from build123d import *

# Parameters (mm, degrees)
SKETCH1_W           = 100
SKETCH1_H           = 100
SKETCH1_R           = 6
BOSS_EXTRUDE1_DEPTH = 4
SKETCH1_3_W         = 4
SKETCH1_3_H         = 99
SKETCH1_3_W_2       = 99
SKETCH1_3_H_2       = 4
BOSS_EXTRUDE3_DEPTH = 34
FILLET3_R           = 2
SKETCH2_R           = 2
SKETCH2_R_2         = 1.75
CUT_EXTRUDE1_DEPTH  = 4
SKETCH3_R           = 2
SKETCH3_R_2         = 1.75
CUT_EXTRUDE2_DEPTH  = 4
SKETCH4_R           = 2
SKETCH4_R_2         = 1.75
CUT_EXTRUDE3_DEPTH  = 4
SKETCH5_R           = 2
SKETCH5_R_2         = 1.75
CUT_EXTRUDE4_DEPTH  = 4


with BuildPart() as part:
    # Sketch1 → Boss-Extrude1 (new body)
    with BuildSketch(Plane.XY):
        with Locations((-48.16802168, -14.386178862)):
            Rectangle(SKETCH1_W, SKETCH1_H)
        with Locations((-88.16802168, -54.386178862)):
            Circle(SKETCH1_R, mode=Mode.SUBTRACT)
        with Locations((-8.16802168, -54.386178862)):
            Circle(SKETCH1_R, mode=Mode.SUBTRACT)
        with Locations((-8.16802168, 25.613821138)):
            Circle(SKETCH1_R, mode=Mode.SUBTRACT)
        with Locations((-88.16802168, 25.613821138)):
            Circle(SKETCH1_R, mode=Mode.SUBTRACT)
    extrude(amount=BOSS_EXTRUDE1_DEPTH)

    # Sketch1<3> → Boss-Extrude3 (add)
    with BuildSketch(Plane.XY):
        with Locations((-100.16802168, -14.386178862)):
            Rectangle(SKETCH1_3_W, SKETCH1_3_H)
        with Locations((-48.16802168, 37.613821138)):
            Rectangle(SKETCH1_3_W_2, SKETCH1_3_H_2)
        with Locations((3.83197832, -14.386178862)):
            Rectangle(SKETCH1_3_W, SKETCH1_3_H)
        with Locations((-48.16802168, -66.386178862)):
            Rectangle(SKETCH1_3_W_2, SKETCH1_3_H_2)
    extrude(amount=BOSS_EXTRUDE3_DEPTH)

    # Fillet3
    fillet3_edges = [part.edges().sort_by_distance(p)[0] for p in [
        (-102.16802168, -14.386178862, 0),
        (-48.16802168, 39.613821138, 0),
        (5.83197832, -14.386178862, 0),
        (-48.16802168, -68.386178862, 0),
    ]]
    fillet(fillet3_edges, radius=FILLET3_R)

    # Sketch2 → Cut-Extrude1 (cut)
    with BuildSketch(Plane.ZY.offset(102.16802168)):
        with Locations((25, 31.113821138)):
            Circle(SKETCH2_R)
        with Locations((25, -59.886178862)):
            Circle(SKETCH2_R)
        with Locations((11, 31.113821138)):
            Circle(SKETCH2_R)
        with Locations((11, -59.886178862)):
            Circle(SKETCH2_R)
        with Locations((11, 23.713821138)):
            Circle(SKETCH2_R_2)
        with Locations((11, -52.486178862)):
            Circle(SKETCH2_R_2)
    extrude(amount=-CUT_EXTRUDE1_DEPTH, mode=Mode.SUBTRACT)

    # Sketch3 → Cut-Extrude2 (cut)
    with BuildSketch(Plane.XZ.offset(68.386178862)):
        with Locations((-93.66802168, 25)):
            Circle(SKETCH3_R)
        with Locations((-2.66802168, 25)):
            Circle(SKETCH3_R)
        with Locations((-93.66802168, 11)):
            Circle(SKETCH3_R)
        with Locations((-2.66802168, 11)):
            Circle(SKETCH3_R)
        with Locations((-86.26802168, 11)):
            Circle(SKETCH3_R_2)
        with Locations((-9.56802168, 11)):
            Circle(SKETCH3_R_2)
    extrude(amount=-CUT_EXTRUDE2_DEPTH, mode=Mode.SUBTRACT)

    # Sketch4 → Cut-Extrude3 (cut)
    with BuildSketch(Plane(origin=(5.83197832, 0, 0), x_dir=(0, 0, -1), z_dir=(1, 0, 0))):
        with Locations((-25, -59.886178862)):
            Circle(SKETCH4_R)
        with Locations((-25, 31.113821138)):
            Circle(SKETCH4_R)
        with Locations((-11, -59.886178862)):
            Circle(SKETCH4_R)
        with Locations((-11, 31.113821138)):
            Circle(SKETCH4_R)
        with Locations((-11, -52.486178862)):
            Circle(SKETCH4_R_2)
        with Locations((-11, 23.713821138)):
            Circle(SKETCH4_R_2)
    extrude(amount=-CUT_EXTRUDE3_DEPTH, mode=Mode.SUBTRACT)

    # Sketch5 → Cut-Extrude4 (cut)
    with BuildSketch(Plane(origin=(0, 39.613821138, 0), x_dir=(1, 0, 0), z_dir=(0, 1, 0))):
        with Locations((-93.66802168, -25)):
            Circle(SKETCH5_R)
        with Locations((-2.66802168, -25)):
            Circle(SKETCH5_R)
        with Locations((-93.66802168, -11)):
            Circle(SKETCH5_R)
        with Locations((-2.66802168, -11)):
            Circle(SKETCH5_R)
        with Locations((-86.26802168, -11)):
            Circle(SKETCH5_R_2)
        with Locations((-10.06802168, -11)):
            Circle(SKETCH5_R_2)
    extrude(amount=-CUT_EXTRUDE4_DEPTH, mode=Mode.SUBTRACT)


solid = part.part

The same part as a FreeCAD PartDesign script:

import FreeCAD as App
import Part
import Sketcher
from FreeCAD import Vector


def edges_at(feature, points):
    """Names of the edges that pass closest to the given points."""
    edges = feature.Shape.Edges
    near = lambda p: min(range(len(edges)), key=lambda i: edges[i].distToShape(Part.Vertex(*p))[0])
    return sorted({f"Edge{near(p) + 1}" for p in points})

doc = App.newDocument("Part")
body = doc.addObject("PartDesign::Body", "Body")

# Sketch on XY plane
sketch1 = body.newObject("Sketcher::SketchObject", "Sketch")
sketch1.AttachmentSupport = (doc.getObject("XY_Plane"), [""])
sketch1.MapMode = "FlatFace"
sketch1.addGeometry(Part.LineSegment(Vector(-98, 36, 0), Vector(-98, -64, 0)), False)
sketch1.addGeometry(Part.LineSegment(Vector(-98, -64, 0), Vector(2, -64, 0)), False)
sketch1.addGeometry(Part.LineSegment(Vector(2, -64, 0), Vector(2, 36, 0)), False)
sketch1.addGeometry(Part.LineSegment(Vector(2, 36, 0), Vector(-98, 36, 0)), False)
sketch1.addGeometry(Part.Circle(Vector(-88, -54, 0), Vector(0, 0, 1), 6), False)
sketch1.addGeometry(Part.Circle(Vector(-8, -54, 0), Vector(0, 0, 1), 6), False)
sketch1.addGeometry(Part.Circle(Vector(-88, 26, 0), Vector(0, 0, 1), 6), False)
sketch1.addGeometry(Part.Circle(Vector(-8, 26, 0), Vector(0, 0, 1), 6), False)
sketch1.addConstraint(Sketcher.Constraint("Coincident", 0, 2, 1, 1))
sketch1.addConstraint(Sketcher.Constraint("Coincident", 1, 2, 2, 1))
sketch1.addConstraint(Sketcher.Constraint("Coincident", 2, 2, 3, 1))
sketch1.addConstraint(Sketcher.Constraint("Coincident", 3, 2, 0, 1))
sketch1.addConstraint(Sketcher.Constraint("Vertical", 0))
sketch1.addConstraint(Sketcher.Constraint("Horizontal", 1))
sketch1.addConstraint(Sketcher.Constraint("Vertical", 2))
sketch1.addConstraint(Sketcher.Constraint("Horizontal", 3))
sketch1.addConstraint(Sketcher.Constraint("Equal", 4, 5))
sketch1.addConstraint(Sketcher.Constraint("Equal", 5, 6))
sketch1.addConstraint(Sketcher.Constraint("Equal", 6, 7))
sketch1.addConstraint(Sketcher.Constraint("Horizontal", 4, 3, 5, 3))
sketch1.addConstraint(Sketcher.Constraint("Horizontal", 6, 3, 7, 3))
sketch1.addConstraint(Sketcher.Constraint("Vertical", 4, 3, 6, 3))
sketch1.addConstraint(Sketcher.Constraint("Vertical", 5, 3, 7, 3))
sketch1.addConstraint(Sketcher.Constraint("Equal", 3, 0))
sketch1.addConstraint(Sketcher.Constraint("Diameter", 4, 12.0))
sketch1.addConstraint(Sketcher.Constraint("DistanceX", 1, 1, 1, 2, 100.0))
sketch1.addConstraint(Sketcher.Constraint("DistanceX", 4, 3, 5, 3, 80.0))
sketch1.addConstraint(Sketcher.Constraint("DistanceY", 4, 3, 6, 3, 80.0))
sketch1.addConstraint(Sketcher.Constraint("DistanceX", 0, 2, 4, 3, 10.0))
sketch1.addConstraint(Sketcher.Constraint("DistanceY", 0, 2, 4, 3, 10.0))
sketch1.addConstraint(Sketcher.Constraint("DistanceX", 4, 3, -1, 1, 88.168022))
sketch1.addConstraint(Sketcher.Constraint("DistanceY", 4, 3, -1, 1, 54.386179))
pad1 = body.newObject("PartDesign::Pad", "Pad")
pad1.Profile = sketch1
pad1.Length = 4

# Sketch on XY plane
sketch2 = body.newObject("Sketcher::SketchObject", "Sketch001")
sketch2.AttachmentSupport = (doc.getObject("XY_Plane"), [""])
sketch2.MapMode = "FlatFace"
sketch2.addGeometry(Part.LineSegment(Vector(-102.2, 35.1, 0), Vector(-102.2, -63.9, 0)), False)
sketch2.addGeometry(Part.LineSegment(Vector(-102.2, -63.9, 0), Vector(-98.2, -63.9, 0)), False)
sketch2.addGeometry(Part.LineSegment(Vector(-98.2, -63.9, 0), Vector(-98.2, 35.1, 0)), False)
sketch2.addGeometry(Part.LineSegment(Vector(-98.2, 35.1, 0), Vector(-102.2, 35.1, 0)), False)
sketch2.addGeometry(Part.LineSegment(Vector(-97.7, 39.6, 0), Vector(-97.7, 35.6, 0)), False)
sketch2.addGeometry(Part.LineSegment(Vector(-97.7, 35.6, 0), Vector(1.3, 35.6, 0)), False)
sketch2.addGeometry(Part.LineSegment(Vector(1.3, 35.6, 0), Vector(1.3, 39.6, 0)), False)
sketch2.addGeometry(Part.LineSegment(Vector(1.3, 39.6, 0), Vector(-97.7, 39.6, 0)), False)
sketch2.addGeometry(Part.LineSegment(Vector(1.8, 35.1, 0), Vector(1.8, -63.9, 0)), False)
sketch2.addGeometry(Part.LineSegment(Vector(1.8, -63.9, 0), Vector(5.8, -63.9, 0)), False)
sketch2.addGeometry(Part.LineSegment(Vector(5.8, -63.9, 0), Vector(5.8, 35.1, 0)), False)
sketch2.addGeometry(Part.LineSegment(Vector(5.8, 35.1, 0), Vector(1.8, 35.1, 0)), False)
sketch2.addGeometry(Part.LineSegment(Vector(-97.7, -64.4, 0), Vector(-97.7, -68.4, 0)), False)
sketch2.addGeometry(Part.LineSegment(Vector(-97.7, -68.4, 0), Vector(1.3, -68.4, 0)), False)
sketch2.addGeometry(Part.LineSegment(Vector(1.3, -68.4, 0), Vector(1.3, -64.4, 0)), False)
sketch2.addGeometry(Part.LineSegment(Vector(1.3, -64.4, 0), Vector(-97.7, -64.4, 0)), False)
sketch2.addConstraint(Sketcher.Constraint("Coincident", 0, 2, 1, 1))
sketch2.addConstraint(Sketcher.Constraint("Coincident", 1, 2, 2, 1))
sketch2.addConstraint(Sketcher.Constraint("Coincident", 2, 2, 3, 1))
sketch2.addConstraint(Sketcher.Constraint("Coincident", 3, 2, 0, 1))
sketch2.addConstraint(Sketcher.Constraint("Coincident", 4, 2, 5, 1))
sketch2.addConstraint(Sketcher.Constraint("Coincident", 5, 2, 6, 1))
sketch2.addConstraint(Sketcher.Constraint("Coincident", 6, 2, 7, 1))
sketch2.addConstraint(Sketcher.Constraint("Coincident", 7, 2, 4, 1))
sketch2.addConstraint(Sketcher.Constraint("Coincident", 8, 2, 9, 1))
sketch2.addConstraint(Sketcher.Constraint("Coincident", 9, 2, 10, 1))
sketch2.addConstraint(Sketcher.Constraint("Coincident", 10, 2, 11, 1))
sketch2.addConstraint(Sketcher.Constraint("Coincident", 11, 2, 8, 1))
sketch2.addConstraint(Sketcher.Constraint("Coincident", 12, 2, 13, 1))
sketch2.addConstraint(Sketcher.Constraint("Coincident", 13, 2, 14, 1))
sketch2.addConstraint(Sketcher.Constraint("Coincident", 14, 2, 15, 1))
sketch2.addConstraint(Sketcher.Constraint("Coincident", 15, 2, 12, 1))
sketch2.addConstraint(Sketcher.Constraint("Vertical", 0))
sketch2.addConstraint(Sketcher.Constraint("Horizontal", 1))
sketch2.addConstraint(Sketcher.Constraint("Vertical", 2))
sketch2.addConstraint(Sketcher.Constraint("Horizontal", 3))
sketch2.addConstraint(Sketcher.Constraint("Vertical", 4))
sketch2.addConstraint(Sketcher.Constraint("Horizontal", 5))
sketch2.addConstraint(Sketcher.Constraint("Vertical", 6))
sketch2.addConstraint(Sketcher.Constraint("Horizontal", 7))
sketch2.addConstraint(Sketcher.Constraint("Vertical", 8))
sketch2.addConstraint(Sketcher.Constraint("Horizontal", 9))
sketch2.addConstraint(Sketcher.Constraint("Vertical", 10))
sketch2.addConstraint(Sketcher.Constraint("Horizontal", 11))
sketch2.addConstraint(Sketcher.Constraint("Vertical", 12))
sketch2.addConstraint(Sketcher.Constraint("Horizontal", 13))
sketch2.addConstraint(Sketcher.Constraint("Vertical", 14))
sketch2.addConstraint(Sketcher.Constraint("Horizontal", 15))
sketch2.addConstraint(Sketcher.Constraint("Horizontal", 1, 2, 8, 2))
sketch2.addConstraint(Sketcher.Constraint("Horizontal", 3, 2, 10, 2))
sketch2.addConstraint(Sketcher.Constraint("Vertical", 7, 2, 12, 2))
sketch2.addConstraint(Sketcher.Constraint("Vertical", 6, 2, 13, 2))
sketch2.addConstraint(Sketcher.Constraint("Equal", 3, 9))
sketch2.addConstraint(Sketcher.Constraint("Equal", 15, 0))
sketch2.addConstraint(Sketcher.Constraint("Equal", 11, 4))
sketch2.addConstraint(Sketcher.Constraint("Equal", 6, 12))
sketch2.addConstraint(Sketcher.Constraint("DistanceX", 1, 1, 1, 2, 4.0))
sketch2.addConstraint(Sketcher.Constraint("DistanceX", 5, 1, 5, 2, 99.0))
sketch2.addConstraint(Sketcher.Constraint("DistanceX", 1, 2, 8, 2, 100.0))
sketch2.addConstraint(Sketcher.Constraint("DistanceX", 2, 2, 4, 2, 0.5))
sketch2.addConstraint(Sketcher.Constraint("DistanceY", 2, 2, 4, 2, 0.5))
sketch2.addConstraint(Sketcher.Constraint("DistanceY", 12, 2, 1, 2, 4.5))
sketch2.addConstraint(Sketcher.Constraint("DistanceX", 0, 2, -1, 1, 102.168022))
sketch2.addConstraint(Sketcher.Constraint("DistanceY", 0, 2, -1, 1, 63.886179))
pad2 = body.newObject("PartDesign::Pad", "Pad001")
pad2.Profile = sketch2
pad2.Length = 34
doc.recompute()

fillet = body.newObject("PartDesign::Fillet", "Fillet")
fillet.Base = (pad2, edges_at(pad2, [
    (-102.168, -14.386, 0),
    (-48.168, 39.614, 0),
    (5.832, -14.386, 0),
    (-48.168, -68.386, 0),
]))
fillet.Radius = 2

# Sketch on YZ plane
sketch3 = body.newObject("Sketcher::SketchObject", "Sketch002")
sketch3.AttachmentSupport = (doc.getObject("YZ_Plane"), [""])
sketch3.MapMode = "FlatFace"
sketch3.AttachmentOffset = App.Placement(Vector(0, 0, -102.168022), App.Rotation())
sketch3.addGeometry(Part.Circle(Vector(31.1, 25, 0), Vector(0, 0, 1), 2), False)
sketch3.addGeometry(Part.Circle(Vector(-59.9, 25, 0), Vector(0, 0, 1), 2), False)
sketch3.addGeometry(Part.Circle(Vector(31.1, 11, 0), Vector(0, 0, 1), 2), False)
sketch3.addGeometry(Part.Circle(Vector(-59.9, 11, 0), Vector(0, 0, 1), 2), False)
sketch3.addGeometry(Part.Circle(Vector(23.7, 11, 0), Vector(0, 0, 1), 1.8), False)
sketch3.addGeometry(Part.Circle(Vector(-52.5, 11, 0), Vector(0, 0, 1), 1.8), False)
sketch3.addConstraint(Sketcher.Constraint("Equal", 0, 1))
sketch3.addConstraint(Sketcher.Constraint("Equal", 1, 2))
sketch3.addConstraint(Sketcher.Constraint("Equal", 2, 3))
sketch3.addConstraint(Sketcher.Constraint("Equal", 4, 5))
sketch3.addConstraint(Sketcher.Constraint("Horizontal", 0, 3, 1, 3))
sketch3.addConstraint(Sketcher.Constraint("Horizontal", 2, 3, 3, 3))
sketch3.addConstraint(Sketcher.Constraint("Horizontal", 3, 3, 4, 3))
sketch3.addConstraint(Sketcher.Constraint("Horizontal", 4, 3, 5, 3))
sketch3.addConstraint(Sketcher.Constraint("Vertical", 0, 3, 2, 3))
sketch3.addConstraint(Sketcher.Constraint("Vertical", 1, 3, 3, 3))
sketch3.addConstraint(Sketcher.Constraint("Diameter", 0, 4.0))
sketch3.addConstraint(Sketcher.Constraint("Diameter", 4, 3.5))
sketch3.addConstraint(Sketcher.Constraint("DistanceY", -1, 1, 0, 3, 25.0))
sketch3.addConstraint(Sketcher.Constraint("DistanceY", -1, 1, 2, 3, 11.0))
sketch3.addConstraint(Sketcher.Constraint("DistanceX", 1, 3, 0, 3, 91.0))
sketch3.addConstraint(Sketcher.Constraint("DistanceX", 4, 3, 2, 3, 7.4))
sketch3.addConstraint(Sketcher.Constraint("DistanceX", 3, 3, 5, 3, 7.4))
sketch3.addConstraint(Sketcher.Constraint("DistanceX", -1, 1, 0, 3, 31.113821))
pocket1 = body.newObject("PartDesign::Pocket", "Pocket")
pocket1.Profile = sketch3
pocket1.Length = 4
pocket1.Reversed = True

# Sketch on XZ plane
sketch4 = body.newObject("Sketcher::SketchObject", "Sketch003")
sketch4.AttachmentSupport = (doc.getObject("XZ_Plane"), [""])
sketch4.MapMode = "FlatFace"
sketch4.AttachmentOffset = App.Placement(Vector(0, 0, 68.386179), App.Rotation())
sketch4.addGeometry(Part.Circle(Vector(-93.7, 25, 0), Vector(0, 0, 1), 2), False)
sketch4.addGeometry(Part.Circle(Vector(-2.7, 25, 0), Vector(0, 0, 1), 2), False)
sketch4.addGeometry(Part.Circle(Vector(-93.7, 11, 0), Vector(0, 0, 1), 2), False)
sketch4.addGeometry(Part.Circle(Vector(-2.7, 11, 0), Vector(0, 0, 1), 2), False)
sketch4.addGeometry(Part.Circle(Vector(-86.3, 11, 0), Vector(0, 0, 1), 1.8), False)
sketch4.addGeometry(Part.Circle(Vector(-9.6, 11, 0), Vector(0, 0, 1), 1.8), False)
sketch4.addConstraint(Sketcher.Constraint("Equal", 0, 1))
sketch4.addConstraint(Sketcher.Constraint("Equal", 1, 2))
sketch4.addConstraint(Sketcher.Constraint("Equal", 2, 3))
sketch4.addConstraint(Sketcher.Constraint("Equal", 4, 5))
sketch4.addConstraint(Sketcher.Constraint("Horizontal", 0, 3, 1, 3))
sketch4.addConstraint(Sketcher.Constraint("Horizontal", 2, 3, 3, 3))
sketch4.addConstraint(Sketcher.Constraint("Horizontal", 3, 3, 4, 3))
sketch4.addConstraint(Sketcher.Constraint("Horizontal", 4, 3, 5, 3))
sketch4.addConstraint(Sketcher.Constraint("Vertical", 0, 3, 2, 3))
sketch4.addConstraint(Sketcher.Constraint("Vertical", 1, 3, 3, 3))
sketch4.addConstraint(Sketcher.Constraint("Diameter", 0, 4.0))
sketch4.addConstraint(Sketcher.Constraint("Diameter", 4, 3.5))
sketch4.addConstraint(Sketcher.Constraint("DistanceY", -1, 1, 0, 3, 25.0))
sketch4.addConstraint(Sketcher.Constraint("DistanceY", -1, 1, 2, 3, 11.0))
sketch4.addConstraint(Sketcher.Constraint("DistanceX", 0, 3, 1, 3, 91.0))
sketch4.addConstraint(Sketcher.Constraint("DistanceX", 2, 3, 4, 3, 7.4))
sketch4.addConstraint(Sketcher.Constraint("DistanceX", 5, 3, 3, 3, 6.9))
sketch4.addConstraint(Sketcher.Constraint("DistanceX", 0, 3, -1, 1, 93.668022))
pocket2 = body.newObject("PartDesign::Pocket", "Pocket001")
pocket2.Profile = sketch4
pocket2.Length = 4

# Sketch on YZ plane
sketch5 = body.newObject("Sketcher::SketchObject", "Sketch004")
sketch5.AttachmentSupport = (doc.getObject("YZ_Plane"), [""])
sketch5.MapMode = "FlatFace"
sketch5.AttachmentOffset = App.Placement(Vector(0, 0, 5.831978), App.Rotation())
sketch5.addGeometry(Part.Circle(Vector(-59.9, 25, 0), Vector(0, 0, 1), 2), False)
sketch5.addGeometry(Part.Circle(Vector(31.1, 25, 0), Vector(0, 0, 1), 2), False)
sketch5.addGeometry(Part.Circle(Vector(-59.9, 11, 0), Vector(0, 0, 1), 2), False)
sketch5.addGeometry(Part.Circle(Vector(31.1, 11, 0), Vector(0, 0, 1), 2), False)
sketch5.addGeometry(Part.Circle(Vector(-52.5, 11, 0), Vector(0, 0, 1), 1.8), False)
sketch5.addGeometry(Part.Circle(Vector(23.7, 11, 0), Vector(0, 0, 1), 1.8), False)
sketch5.addConstraint(Sketcher.Constraint("Equal", 0, 1))
sketch5.addConstraint(Sketcher.Constraint("Equal", 1, 2))
sketch5.addConstraint(Sketcher.Constraint("Equal", 2, 3))
sketch5.addConstraint(Sketcher.Constraint("Equal", 4, 5))
sketch5.addConstraint(Sketcher.Constraint("Horizontal", 0, 3, 1, 3))
sketch5.addConstraint(Sketcher.Constraint("Horizontal", 2, 3, 3, 3))
sketch5.addConstraint(Sketcher.Constraint("Horizontal", 3, 3, 4, 3))
sketch5.addConstraint(Sketcher.Constraint("Horizontal", 4, 3, 5, 3))
sketch5.addConstraint(Sketcher.Constraint("Vertical", 0, 3, 2, 3))
sketch5.addConstraint(Sketcher.Constraint("Vertical", 1, 3, 3, 3))
sketch5.addConstraint(Sketcher.Constraint("Diameter", 0, 4.0))
sketch5.addConstraint(Sketcher.Constraint("Diameter", 4, 3.5))
sketch5.addConstraint(Sketcher.Constraint("DistanceY", -1, 1, 0, 3, 25.0))
sketch5.addConstraint(Sketcher.Constraint("DistanceY", -1, 1, 2, 3, 11.0))
sketch5.addConstraint(Sketcher.Constraint("DistanceX", 0, 3, 1, 3, 91.0))
sketch5.addConstraint(Sketcher.Constraint("DistanceX", 2, 3, 4, 3, 7.4))
sketch5.addConstraint(Sketcher.Constraint("DistanceX", 5, 3, 3, 3, 7.4))
sketch5.addConstraint(Sketcher.Constraint("DistanceX", 0, 3, -1, 1, 59.886179))
pocket3 = body.newObject("PartDesign::Pocket", "Pocket002")
pocket3.Profile = sketch5
pocket3.Length = 4

# Sketch on XZ plane
sketch6 = body.newObject("Sketcher::SketchObject", "Sketch005")
sketch6.AttachmentSupport = (doc.getObject("XZ_Plane"), [""])
sketch6.MapMode = "FlatFace"
sketch6.AttachmentOffset = App.Placement(Vector(0, 0, -39.613821), App.Rotation())
sketch6.addGeometry(Part.Circle(Vector(-93.7, 25, 0), Vector(0, 0, 1), 2), False)
sketch6.addGeometry(Part.Circle(Vector(-2.7, 25, 0), Vector(0, 0, 1), 2), False)
sketch6.addGeometry(Part.Circle(Vector(-93.7, 11, 0), Vector(0, 0, 1), 2), False)
sketch6.addGeometry(Part.Circle(Vector(-2.7, 11, 0), Vector(0, 0, 1), 2), False)
sketch6.addGeometry(Part.Circle(Vector(-86.3, 11, 0), Vector(0, 0, 1), 1.8), False)
sketch6.addGeometry(Part.Circle(Vector(-10.1, 11, 0), Vector(0, 0, 1), 1.8), False)
sketch6.addConstraint(Sketcher.Constraint("Equal", 0, 1))
sketch6.addConstraint(Sketcher.Constraint("Equal", 1, 2))
sketch6.addConstraint(Sketcher.Constraint("Equal", 2, 3))
sketch6.addConstraint(Sketcher.Constraint("Equal", 4, 5))
sketch6.addConstraint(Sketcher.Constraint("Horizontal", 0, 3, 1, 3))
sketch6.addConstraint(Sketcher.Constraint("Horizontal", 2, 3, 3, 3))
sketch6.addConstraint(Sketcher.Constraint("Horizontal", 3, 3, 4, 3))
sketch6.addConstraint(Sketcher.Constraint("Horizontal", 4, 3, 5, 3))
sketch6.addConstraint(Sketcher.Constraint("Vertical", 0, 3, 2, 3))
sketch6.addConstraint(Sketcher.Constraint("Vertical", 1, 3, 3, 3))
sketch6.addConstraint(Sketcher.Constraint("Diameter", 0, 4.0))
sketch6.addConstraint(Sketcher.Constraint("Diameter", 4, 3.5))
sketch6.addConstraint(Sketcher.Constraint("DistanceY", -1, 1, 0, 3, 25.0))
sketch6.addConstraint(Sketcher.Constraint("DistanceY", -1, 1, 2, 3, 11.0))
sketch6.addConstraint(Sketcher.Constraint("DistanceX", 0, 3, 1, 3, 91.0))
sketch6.addConstraint(Sketcher.Constraint("DistanceX", 2, 3, 4, 3, 7.4))
sketch6.addConstraint(Sketcher.Constraint("DistanceX", 5, 3, 3, 3, 7.4))
sketch6.addConstraint(Sketcher.Constraint("DistanceX", 0, 3, -1, 1, 93.668022))
pocket4 = body.newObject("PartDesign::Pocket", "Pocket003")
pocket4.Profile = sketch6
pocket4.Length = 4
pocket4.Reversed = True

doc.recompute()
